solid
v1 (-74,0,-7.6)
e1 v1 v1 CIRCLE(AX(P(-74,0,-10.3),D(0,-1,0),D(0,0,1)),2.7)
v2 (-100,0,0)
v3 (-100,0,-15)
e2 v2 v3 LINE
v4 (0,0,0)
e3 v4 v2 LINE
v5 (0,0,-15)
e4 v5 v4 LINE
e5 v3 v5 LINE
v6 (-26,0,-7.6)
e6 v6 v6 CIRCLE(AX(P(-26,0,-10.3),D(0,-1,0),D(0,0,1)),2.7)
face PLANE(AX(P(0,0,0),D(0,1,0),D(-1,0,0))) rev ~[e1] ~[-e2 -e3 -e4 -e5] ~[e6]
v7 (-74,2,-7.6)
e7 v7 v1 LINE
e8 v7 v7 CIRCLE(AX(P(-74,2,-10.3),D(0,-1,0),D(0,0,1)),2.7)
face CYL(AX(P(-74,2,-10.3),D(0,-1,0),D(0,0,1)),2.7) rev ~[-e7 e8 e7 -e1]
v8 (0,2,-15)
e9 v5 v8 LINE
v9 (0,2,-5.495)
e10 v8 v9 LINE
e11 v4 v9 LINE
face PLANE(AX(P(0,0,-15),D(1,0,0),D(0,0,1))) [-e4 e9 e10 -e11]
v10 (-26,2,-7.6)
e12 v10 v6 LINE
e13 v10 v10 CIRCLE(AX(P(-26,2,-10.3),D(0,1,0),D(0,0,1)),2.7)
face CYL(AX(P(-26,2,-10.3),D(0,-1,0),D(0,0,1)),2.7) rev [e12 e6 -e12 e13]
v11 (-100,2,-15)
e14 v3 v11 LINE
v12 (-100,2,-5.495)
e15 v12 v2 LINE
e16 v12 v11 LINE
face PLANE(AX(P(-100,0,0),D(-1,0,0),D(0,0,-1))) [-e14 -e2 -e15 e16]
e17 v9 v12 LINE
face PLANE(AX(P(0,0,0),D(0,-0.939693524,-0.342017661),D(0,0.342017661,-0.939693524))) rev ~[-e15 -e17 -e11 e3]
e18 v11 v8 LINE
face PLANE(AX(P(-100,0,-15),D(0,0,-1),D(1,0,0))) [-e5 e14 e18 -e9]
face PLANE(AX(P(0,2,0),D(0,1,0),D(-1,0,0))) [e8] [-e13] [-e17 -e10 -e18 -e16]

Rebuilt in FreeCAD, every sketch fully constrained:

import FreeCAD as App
import Part
import Sketcher
Q = App.Units.Quantity

doc = App.newDocument("Part")
body = doc.addObject("PartDesign::Body", "Body")

# Sketch on XZ plane
sketch1 = body.newObject("Sketcher::SketchObject", "Sketch")
sketch1.AttachmentSupport = (doc.getObject("XZ_Plane"), [""])
sketch1.MapMode = "FlatFace"
sketch1.addGeometry([
    Part.LineSegment(App.Vector(-100, 0, 0), App.Vector(0, 0, 0)),
    Part.LineSegment(App.Vector(0, 0, 0), App.Vector(0, -15, 0)),
    Part.LineSegment(App.Vector(0, -15, 0), App.Vector(-100, -15, 0)),
    Part.LineSegment(App.Vector(-100, -15, 0), App.Vector(-100, 0, 0)),
], False)
sketch1.addConstraint([
    Sketcher.Constraint("Coincident", 0, 2, 1, 1),
    Sketcher.Constraint("Coincident", 1, 2, 2, 1),
    Sketcher.Constraint("Coincident", 2, 2, 3, 1),
    Sketcher.Constraint("Coincident", 3, 2, 0, 1),
    Sketcher.Constraint("Horizontal", 0),
    Sketcher.Constraint("Vertical", 1),
    Sketcher.Constraint("Horizontal", 2),
    Sketcher.Constraint("Vertical", 3),
    Sketcher.Constraint("Coincident", 0, 2, -1, 1),
    Sketcher.Constraint("DistanceX", 0, 1, 0, 2, Q("100 mm")),
    Sketcher.Constraint("DistanceY", 1, 2, 1, 1, Q("15 mm")),
])
pad1 = body.newObject("PartDesign::Pad", "Pad")
pad1.Profile = sketch1
pad1.Length = 2
pad1.Reversed = True

# Sketch on YZ plane
sketch2 = body.newObject("Sketcher::SketchObject", "Sketch001")
sketch2.AttachmentSupport = (doc.getObject("YZ_Plane"), [""])
sketch2.MapMode = "FlatFace"
sketch2.addGeometry([
    Part.LineSegment(App.Vector(2, 0, 0), App.Vector(0, 0, 0)),
    Part.LineSegment(App.Vector(0, 0, 0), App.Vector(2, -5.5, 0)),
    Part.LineSegment(App.Vector(2, -5.5, 0), App.Vector(2, 0, 0)),
], False)
sketch2.addConstraint([
    Sketcher.Constraint("Coincident", 0, 2, 1, 1),
    Sketcher.Constraint("Coincident", 1, 2, 2, 1),
    Sketcher.Constraint("Coincident", 2, 2, 0, 1),
    Sketcher.Constraint("Horizontal", 0),
    Sketcher.Constraint("Vertical", 2),
    Sketcher.Constraint("Coincident", 0, 2, -1, 1),
    Sketcher.Constraint("DistanceX", 0, 2, 0, 1, Q("2 mm")),
    Sketcher.Constraint("Angle", 1, Q("-70.0002 deg")),
])
pocket1 = body.newObject("PartDesign::Pocket", "Pocket")
pocket1.Profile = sketch2
pocket1.Type = "ThroughAll"

# Sketch on XZ plane
sketch3 = body.newObject("Sketcher::SketchObject", "Sketch002")
sketch3.AttachmentSupport = (doc.getObject("XZ_Plane"), [""])
sketch3.MapMode = "FlatFace"
sketch3.AttachmentOffset = App.Placement(App.Vector(0, 0, -2), App.Rotation())
sketch3.addGeometry(Part.Circle(App.Vector(-74, -10.3, 0), App.Vector(0, 0, 1), 2.7), False)
sketch3.addConstraint([
    Sketcher.Constraint("Diameter", 0, Q("5.4 mm")),
    Sketcher.Constraint("DistanceX", 0, 3, -1, 1, Q("74 mm")),
    Sketcher.Constraint("DistanceY", 0, 3, -1, 1, Q("10.3 mm")),
])
doc.recompute()
hole = body.newObject("PartDesign::Hole", "Hole")
hole.Profile = sketch3
hole.ThreadType = "None"
hole.Diameter = 5.4
hole.DepthType = "Dimension"
hole.Depth = 5.83
hole.DrillPoint = "Flat"
hole.Reversed = True
doc.recompute()

datumplane = body.newObject("PartDesign::Plane", "DatumPlane")
datumplane.AttachmentSupport = (doc.getObject("YZ_Plane"), [""])
datumplane.MapMode = "FlatFace"
datumplane.AttachmentOffset = App.Placement(App.Vector(0, 0, -50), App.Rotation())
mirrored = body.newObject("PartDesign::Mirrored", "Mirrored")
mirrored.Originals = [hole]
mirrored.MirrorPlane = (datumplane, [""])
body.Tip = mirrored

doc.recompute()
